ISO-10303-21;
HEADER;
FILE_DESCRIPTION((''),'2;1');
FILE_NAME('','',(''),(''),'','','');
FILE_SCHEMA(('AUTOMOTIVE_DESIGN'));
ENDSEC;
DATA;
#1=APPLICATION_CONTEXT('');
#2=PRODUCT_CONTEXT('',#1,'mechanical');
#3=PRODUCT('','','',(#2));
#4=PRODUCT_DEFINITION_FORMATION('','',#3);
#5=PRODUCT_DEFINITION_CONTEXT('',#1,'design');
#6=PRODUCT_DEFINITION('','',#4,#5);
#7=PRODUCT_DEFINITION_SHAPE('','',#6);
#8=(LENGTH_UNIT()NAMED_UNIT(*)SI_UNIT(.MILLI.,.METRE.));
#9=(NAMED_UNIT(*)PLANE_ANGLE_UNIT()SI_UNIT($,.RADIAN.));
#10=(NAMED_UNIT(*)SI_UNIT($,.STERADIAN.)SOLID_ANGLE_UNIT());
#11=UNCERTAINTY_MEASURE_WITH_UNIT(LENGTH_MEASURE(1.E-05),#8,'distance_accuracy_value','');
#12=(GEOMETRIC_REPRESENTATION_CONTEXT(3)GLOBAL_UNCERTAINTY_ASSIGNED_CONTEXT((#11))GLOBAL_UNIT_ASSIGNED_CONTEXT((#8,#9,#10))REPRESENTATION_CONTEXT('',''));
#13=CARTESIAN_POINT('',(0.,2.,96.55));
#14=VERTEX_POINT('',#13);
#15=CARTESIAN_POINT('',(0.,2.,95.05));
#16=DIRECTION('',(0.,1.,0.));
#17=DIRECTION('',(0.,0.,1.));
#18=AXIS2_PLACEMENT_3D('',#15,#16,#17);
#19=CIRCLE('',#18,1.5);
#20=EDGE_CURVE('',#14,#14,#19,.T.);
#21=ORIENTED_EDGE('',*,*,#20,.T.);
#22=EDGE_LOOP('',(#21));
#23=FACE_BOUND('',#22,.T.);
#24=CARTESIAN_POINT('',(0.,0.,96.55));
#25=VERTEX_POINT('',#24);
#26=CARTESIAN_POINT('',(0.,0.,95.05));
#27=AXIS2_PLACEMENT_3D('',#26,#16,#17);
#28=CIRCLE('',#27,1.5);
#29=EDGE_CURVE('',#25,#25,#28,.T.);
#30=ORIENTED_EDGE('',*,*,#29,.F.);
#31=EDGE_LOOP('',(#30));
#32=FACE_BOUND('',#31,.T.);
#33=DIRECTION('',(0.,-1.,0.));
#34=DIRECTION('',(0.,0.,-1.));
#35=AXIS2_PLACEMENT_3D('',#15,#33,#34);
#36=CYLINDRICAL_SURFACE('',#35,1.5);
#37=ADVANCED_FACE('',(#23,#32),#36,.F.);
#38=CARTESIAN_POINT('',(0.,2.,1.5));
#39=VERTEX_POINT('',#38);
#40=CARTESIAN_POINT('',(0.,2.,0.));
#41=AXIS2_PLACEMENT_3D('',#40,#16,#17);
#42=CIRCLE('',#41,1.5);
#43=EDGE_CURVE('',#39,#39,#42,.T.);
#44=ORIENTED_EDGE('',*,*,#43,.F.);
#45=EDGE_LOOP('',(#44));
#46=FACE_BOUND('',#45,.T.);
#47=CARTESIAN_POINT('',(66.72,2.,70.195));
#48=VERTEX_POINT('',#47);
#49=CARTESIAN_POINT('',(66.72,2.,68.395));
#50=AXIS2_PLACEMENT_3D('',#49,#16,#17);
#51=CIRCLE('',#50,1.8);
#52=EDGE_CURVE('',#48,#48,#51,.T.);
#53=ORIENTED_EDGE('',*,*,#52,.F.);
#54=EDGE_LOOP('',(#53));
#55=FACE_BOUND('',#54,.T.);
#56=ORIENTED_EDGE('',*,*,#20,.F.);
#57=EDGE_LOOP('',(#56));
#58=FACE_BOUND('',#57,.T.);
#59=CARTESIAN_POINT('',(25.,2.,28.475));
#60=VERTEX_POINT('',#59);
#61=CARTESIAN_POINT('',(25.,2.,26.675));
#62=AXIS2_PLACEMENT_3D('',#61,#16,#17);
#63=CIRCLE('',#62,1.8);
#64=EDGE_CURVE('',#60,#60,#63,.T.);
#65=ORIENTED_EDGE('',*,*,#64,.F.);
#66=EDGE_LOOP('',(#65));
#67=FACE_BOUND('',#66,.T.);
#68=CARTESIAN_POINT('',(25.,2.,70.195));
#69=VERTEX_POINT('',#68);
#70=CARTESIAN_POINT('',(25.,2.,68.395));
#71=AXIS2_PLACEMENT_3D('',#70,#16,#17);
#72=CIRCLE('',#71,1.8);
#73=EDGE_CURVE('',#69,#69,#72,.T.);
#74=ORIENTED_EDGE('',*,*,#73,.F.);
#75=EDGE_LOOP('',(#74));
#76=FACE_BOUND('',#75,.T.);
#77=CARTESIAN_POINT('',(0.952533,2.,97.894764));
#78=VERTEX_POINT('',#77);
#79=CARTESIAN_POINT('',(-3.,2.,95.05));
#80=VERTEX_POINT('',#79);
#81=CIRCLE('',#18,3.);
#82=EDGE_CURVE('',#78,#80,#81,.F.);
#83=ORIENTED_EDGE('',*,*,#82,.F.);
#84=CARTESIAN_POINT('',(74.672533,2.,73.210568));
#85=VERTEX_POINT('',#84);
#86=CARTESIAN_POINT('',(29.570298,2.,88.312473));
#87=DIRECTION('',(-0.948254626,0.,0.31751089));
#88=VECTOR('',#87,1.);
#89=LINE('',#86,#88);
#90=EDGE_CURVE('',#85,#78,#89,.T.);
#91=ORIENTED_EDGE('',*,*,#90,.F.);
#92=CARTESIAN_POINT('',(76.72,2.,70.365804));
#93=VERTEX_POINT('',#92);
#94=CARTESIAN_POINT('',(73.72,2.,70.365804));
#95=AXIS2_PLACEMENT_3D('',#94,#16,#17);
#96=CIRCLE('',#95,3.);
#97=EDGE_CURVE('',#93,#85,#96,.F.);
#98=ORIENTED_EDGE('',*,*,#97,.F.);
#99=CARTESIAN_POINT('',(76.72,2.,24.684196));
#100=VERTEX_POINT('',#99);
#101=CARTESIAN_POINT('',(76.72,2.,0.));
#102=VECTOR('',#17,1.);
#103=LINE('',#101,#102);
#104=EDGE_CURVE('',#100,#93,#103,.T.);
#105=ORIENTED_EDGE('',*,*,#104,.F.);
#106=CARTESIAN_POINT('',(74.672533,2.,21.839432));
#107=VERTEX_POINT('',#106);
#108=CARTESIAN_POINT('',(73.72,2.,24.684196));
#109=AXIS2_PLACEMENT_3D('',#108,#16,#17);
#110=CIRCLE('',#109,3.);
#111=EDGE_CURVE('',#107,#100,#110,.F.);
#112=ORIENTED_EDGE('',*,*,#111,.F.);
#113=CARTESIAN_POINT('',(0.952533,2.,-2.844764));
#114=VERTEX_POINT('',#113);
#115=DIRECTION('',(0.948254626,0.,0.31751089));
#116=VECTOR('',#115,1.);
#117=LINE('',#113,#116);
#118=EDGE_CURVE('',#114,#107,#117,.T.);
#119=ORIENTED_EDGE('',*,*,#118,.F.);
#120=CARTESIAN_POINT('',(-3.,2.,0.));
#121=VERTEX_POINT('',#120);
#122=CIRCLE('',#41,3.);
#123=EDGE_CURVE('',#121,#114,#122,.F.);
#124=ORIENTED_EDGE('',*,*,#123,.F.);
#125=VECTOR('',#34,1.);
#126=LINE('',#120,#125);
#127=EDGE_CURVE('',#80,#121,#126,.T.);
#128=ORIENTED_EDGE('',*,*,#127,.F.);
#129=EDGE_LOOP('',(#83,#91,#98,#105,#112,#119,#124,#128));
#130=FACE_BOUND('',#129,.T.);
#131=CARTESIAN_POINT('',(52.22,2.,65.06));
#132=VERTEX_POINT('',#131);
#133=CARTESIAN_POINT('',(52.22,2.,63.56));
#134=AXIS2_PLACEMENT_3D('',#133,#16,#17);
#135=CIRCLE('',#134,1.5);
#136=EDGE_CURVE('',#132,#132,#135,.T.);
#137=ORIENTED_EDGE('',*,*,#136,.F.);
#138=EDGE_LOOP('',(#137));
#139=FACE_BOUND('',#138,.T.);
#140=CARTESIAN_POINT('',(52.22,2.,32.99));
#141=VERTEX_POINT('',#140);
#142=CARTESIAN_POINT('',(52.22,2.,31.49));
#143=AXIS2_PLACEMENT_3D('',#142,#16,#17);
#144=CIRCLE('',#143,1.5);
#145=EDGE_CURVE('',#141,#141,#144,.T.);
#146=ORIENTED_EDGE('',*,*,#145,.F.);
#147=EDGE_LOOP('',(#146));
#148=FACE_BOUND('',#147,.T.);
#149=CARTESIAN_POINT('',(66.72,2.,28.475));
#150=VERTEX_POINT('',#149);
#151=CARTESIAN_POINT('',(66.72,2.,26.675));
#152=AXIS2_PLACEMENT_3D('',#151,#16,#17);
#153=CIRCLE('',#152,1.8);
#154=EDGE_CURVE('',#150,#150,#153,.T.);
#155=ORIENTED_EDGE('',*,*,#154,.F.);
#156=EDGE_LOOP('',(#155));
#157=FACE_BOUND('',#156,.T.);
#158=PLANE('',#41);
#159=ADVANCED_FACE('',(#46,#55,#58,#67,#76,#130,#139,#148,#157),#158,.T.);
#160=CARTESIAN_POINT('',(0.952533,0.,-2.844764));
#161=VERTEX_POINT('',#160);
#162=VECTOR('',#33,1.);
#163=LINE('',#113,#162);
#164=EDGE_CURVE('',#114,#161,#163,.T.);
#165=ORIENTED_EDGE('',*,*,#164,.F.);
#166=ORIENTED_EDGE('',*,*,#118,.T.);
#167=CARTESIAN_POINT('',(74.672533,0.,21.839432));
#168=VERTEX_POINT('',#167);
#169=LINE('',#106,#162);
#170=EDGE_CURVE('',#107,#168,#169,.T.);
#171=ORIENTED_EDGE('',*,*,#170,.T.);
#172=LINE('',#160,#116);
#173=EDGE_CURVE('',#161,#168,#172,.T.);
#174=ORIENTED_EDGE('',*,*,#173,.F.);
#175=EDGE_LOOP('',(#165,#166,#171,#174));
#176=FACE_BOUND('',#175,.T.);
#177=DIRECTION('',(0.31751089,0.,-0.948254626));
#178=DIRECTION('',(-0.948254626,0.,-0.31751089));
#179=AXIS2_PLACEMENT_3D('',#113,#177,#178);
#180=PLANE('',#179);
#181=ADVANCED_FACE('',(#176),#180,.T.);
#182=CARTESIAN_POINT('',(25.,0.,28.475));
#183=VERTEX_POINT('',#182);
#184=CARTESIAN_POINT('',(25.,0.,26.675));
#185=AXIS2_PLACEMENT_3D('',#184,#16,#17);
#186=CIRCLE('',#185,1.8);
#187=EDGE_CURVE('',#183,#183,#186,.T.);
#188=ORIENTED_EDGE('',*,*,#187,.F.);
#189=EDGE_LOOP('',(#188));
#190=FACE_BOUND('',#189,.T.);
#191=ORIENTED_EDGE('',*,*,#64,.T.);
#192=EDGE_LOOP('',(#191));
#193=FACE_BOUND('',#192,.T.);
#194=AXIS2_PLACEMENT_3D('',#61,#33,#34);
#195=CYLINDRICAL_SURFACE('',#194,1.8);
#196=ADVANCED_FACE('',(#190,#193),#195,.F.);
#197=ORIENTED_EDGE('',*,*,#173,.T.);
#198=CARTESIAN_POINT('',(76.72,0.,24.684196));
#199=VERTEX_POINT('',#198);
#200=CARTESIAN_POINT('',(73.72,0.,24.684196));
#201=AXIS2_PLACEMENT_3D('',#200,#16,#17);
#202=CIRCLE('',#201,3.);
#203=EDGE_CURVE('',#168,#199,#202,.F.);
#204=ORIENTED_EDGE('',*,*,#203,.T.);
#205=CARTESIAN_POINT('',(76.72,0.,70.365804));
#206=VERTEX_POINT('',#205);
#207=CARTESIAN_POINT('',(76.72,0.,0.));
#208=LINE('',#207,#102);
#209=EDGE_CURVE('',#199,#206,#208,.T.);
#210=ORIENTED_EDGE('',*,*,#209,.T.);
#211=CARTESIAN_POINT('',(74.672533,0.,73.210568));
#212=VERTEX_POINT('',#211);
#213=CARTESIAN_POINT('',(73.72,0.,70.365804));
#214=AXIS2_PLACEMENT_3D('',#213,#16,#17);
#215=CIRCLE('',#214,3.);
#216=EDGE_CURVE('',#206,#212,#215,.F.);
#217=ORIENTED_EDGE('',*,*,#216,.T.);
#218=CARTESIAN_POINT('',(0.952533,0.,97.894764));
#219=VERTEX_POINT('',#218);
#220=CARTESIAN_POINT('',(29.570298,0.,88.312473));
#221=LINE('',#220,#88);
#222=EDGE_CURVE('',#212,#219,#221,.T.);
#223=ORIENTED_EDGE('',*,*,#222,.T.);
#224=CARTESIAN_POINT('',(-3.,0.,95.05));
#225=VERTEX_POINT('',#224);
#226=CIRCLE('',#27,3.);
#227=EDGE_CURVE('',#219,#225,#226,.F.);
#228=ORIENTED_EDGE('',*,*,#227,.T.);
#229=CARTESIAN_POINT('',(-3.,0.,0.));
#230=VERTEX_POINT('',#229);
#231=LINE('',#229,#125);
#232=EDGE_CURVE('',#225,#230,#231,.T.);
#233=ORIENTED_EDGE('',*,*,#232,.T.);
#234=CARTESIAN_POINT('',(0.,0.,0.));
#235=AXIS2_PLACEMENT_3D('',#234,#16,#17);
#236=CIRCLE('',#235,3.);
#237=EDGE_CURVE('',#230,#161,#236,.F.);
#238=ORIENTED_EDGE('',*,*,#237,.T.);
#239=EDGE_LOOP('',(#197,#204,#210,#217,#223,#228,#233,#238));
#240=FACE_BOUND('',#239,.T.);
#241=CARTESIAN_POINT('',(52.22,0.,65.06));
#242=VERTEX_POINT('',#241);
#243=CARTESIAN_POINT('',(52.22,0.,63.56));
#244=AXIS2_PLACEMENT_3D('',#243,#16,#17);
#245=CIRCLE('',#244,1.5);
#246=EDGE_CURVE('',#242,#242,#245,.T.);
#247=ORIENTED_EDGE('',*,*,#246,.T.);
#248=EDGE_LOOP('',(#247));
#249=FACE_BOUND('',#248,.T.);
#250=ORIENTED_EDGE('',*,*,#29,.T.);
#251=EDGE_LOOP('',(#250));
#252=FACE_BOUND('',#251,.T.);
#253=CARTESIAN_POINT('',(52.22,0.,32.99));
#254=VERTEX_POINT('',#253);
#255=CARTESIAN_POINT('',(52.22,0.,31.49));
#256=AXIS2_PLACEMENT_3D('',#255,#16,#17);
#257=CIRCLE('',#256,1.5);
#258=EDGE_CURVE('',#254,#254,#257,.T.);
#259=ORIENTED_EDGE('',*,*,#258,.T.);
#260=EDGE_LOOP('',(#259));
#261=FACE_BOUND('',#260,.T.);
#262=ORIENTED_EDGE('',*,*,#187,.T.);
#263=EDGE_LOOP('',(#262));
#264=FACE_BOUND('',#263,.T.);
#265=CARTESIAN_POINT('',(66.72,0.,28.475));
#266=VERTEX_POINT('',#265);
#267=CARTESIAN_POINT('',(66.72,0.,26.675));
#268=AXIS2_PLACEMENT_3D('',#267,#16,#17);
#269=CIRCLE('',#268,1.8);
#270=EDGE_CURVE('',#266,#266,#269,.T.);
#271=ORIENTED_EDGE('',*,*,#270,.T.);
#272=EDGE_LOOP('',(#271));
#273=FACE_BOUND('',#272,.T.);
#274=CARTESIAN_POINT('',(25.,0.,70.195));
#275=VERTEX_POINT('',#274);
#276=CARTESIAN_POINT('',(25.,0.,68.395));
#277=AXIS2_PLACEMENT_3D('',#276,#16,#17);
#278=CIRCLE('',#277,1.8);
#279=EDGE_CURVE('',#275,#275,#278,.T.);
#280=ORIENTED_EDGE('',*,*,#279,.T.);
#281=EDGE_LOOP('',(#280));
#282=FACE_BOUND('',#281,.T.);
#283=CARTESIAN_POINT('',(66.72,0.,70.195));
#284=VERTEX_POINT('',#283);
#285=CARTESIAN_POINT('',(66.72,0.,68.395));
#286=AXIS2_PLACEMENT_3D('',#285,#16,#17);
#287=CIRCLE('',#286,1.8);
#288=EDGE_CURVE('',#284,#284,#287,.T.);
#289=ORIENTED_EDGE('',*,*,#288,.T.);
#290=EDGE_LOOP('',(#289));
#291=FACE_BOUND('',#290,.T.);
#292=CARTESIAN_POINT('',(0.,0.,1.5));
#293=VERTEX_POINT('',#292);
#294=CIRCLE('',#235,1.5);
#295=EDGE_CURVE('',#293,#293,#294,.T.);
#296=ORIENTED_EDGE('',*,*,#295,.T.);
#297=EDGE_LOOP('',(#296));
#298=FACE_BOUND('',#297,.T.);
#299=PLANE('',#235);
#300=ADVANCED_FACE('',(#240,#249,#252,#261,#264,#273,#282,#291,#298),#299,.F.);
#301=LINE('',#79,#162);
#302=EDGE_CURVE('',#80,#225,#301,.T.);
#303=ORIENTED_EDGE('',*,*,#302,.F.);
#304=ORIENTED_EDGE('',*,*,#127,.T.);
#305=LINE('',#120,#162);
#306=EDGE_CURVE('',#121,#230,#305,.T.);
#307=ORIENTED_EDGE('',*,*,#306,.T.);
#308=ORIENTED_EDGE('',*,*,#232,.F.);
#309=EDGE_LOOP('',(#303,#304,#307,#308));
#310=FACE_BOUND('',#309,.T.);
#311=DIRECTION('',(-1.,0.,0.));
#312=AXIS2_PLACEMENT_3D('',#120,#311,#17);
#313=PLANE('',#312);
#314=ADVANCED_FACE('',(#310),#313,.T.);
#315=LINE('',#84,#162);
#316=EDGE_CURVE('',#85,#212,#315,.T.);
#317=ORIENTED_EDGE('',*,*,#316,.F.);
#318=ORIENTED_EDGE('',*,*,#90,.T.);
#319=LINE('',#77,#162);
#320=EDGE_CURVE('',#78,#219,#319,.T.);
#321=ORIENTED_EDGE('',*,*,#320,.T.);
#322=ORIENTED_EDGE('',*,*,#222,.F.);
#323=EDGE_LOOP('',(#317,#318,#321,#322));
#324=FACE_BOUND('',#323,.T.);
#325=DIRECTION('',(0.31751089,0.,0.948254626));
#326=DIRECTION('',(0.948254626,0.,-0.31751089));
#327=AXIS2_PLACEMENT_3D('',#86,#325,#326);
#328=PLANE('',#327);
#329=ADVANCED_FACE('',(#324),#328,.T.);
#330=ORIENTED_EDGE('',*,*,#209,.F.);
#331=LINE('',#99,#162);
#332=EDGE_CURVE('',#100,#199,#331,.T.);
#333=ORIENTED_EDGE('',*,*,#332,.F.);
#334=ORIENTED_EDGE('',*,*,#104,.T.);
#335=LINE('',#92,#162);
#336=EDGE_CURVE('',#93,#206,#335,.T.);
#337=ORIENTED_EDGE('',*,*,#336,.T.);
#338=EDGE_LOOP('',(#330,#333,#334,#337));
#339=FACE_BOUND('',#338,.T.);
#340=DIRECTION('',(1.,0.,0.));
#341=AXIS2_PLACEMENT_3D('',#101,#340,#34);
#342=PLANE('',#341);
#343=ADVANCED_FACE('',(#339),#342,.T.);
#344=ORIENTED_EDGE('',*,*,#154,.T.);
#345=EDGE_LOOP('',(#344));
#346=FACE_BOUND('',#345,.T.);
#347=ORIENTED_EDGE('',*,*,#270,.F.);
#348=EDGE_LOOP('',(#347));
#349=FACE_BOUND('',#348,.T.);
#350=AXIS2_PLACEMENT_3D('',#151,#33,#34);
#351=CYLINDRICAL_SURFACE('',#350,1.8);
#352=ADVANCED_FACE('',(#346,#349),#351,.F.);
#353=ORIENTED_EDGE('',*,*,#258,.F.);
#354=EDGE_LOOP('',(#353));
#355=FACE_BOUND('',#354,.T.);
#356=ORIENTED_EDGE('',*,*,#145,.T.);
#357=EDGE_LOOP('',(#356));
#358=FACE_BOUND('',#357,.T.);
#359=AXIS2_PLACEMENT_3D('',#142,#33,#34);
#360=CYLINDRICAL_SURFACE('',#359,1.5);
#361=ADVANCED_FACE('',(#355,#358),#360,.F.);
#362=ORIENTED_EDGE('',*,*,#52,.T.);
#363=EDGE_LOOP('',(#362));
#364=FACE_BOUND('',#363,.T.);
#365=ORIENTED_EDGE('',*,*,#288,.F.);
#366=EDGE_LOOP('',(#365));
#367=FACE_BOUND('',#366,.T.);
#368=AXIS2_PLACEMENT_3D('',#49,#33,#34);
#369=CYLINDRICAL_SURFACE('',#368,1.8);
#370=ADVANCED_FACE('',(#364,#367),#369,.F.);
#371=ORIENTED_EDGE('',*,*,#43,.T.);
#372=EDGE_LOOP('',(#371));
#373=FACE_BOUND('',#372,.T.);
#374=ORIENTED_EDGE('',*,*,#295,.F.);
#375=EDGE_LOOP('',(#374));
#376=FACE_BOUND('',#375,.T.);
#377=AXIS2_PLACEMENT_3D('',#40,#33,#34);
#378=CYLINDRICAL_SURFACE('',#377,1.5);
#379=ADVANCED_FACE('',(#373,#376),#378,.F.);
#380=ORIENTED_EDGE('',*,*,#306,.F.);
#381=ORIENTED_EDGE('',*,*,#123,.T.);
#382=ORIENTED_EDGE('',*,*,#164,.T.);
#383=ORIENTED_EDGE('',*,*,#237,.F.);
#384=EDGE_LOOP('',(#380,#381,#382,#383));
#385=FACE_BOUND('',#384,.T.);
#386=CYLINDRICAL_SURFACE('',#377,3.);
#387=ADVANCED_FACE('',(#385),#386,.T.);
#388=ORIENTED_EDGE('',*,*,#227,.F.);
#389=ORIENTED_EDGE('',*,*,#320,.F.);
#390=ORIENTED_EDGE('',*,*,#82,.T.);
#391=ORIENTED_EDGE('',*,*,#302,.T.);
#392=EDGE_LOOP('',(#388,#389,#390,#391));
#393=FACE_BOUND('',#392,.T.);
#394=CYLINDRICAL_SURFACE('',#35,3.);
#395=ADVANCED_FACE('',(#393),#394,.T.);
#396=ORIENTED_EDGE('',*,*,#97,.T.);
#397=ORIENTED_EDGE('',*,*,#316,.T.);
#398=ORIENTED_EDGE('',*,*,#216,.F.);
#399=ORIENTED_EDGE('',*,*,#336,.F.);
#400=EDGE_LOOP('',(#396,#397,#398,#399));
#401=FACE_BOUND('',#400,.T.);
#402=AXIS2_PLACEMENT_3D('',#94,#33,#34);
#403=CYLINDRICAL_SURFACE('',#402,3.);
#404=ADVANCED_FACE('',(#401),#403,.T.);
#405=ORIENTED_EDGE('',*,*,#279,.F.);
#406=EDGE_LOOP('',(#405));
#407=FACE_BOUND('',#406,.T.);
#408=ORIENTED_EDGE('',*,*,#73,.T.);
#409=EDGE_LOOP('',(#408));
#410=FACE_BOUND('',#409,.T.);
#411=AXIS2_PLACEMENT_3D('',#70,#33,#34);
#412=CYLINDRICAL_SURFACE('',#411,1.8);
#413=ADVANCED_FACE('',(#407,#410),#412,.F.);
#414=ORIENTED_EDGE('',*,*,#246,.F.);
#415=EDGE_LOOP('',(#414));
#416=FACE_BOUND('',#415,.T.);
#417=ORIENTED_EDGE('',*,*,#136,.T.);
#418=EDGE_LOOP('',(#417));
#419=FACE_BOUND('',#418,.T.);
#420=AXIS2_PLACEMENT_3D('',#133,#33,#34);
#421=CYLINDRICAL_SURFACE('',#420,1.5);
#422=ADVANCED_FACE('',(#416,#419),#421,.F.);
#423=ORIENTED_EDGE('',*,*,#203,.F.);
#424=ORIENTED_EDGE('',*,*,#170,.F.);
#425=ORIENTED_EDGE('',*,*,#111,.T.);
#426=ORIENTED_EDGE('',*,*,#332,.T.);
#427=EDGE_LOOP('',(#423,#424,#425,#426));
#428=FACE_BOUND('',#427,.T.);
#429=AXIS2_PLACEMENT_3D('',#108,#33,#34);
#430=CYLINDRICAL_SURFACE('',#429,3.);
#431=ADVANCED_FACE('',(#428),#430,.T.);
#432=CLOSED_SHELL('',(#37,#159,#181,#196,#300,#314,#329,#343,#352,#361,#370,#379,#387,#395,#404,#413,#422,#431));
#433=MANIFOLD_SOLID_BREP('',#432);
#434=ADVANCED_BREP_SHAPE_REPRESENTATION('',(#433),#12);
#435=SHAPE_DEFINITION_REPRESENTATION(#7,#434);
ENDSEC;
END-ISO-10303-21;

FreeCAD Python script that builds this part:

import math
import FreeCAD as App
import Part
import Sketcher
from FreeCAD import Vector
Q = App.Units.Quantity

doc = App.newDocument("Part")
body = doc.addObject("PartDesign::Body", "Body")

sketch1 = doc.addObject("Sketcher::SketchObject", "Sketch")
body.addObject(sketch1)
sketch1.AttachmentSupport = (doc.XZ_Plane, [""])
sketch1.MapMode = "FlatFace"
sketch1.addGeometry([
    Part.LineSegment(Vector(74.7, 21.8, 0), Vector(1, -2.8, 0)),
    Part.ArcOfCircle(Part.Circle(Vector(0, 0, 0), Vector(0, 0, 1), 3), math.radians(180), math.radians(289)),
    Part.LineSegment(Vector(-3, 0, 0), Vector(-3, 95, 0)),
    Part.ArcOfCircle(Part.Circle(Vector(0, 95, 0), Vector(0, 0, 1), 3), math.radians(71), math.radians(180)),
    Part.LineSegment(Vector(1, 97.9, 0), Vector(74.7, 73.2, 0)),
    Part.ArcOfCircle(Part.Circle(Vector(73.7, 70.4, 0), Vector(0, 0, 1), 3), math.radians(0), math.radians(71)),
    Part.LineSegment(Vector(76.7, 70.4, 0), Vector(76.7, 24.7, 0)),
    Part.ArcOfCircle(Part.Circle(Vector(73.7, 24.7, 0), Vector(0, 0, 1), 3), math.radians(-71), math.radians(0)),
    Part.Circle(Vector(66.7, 68.4, 0), Vector(0, 0, 1), 1.8),
    Part.Circle(Vector(52.2, 63.6, 0), Vector(0, 0, 1), 1.5),
    Part.Circle(Vector(0, 95, 0), Vector(0, 0, 1), 1.5),
    Part.Circle(Vector(25, 68.4, 0), Vector(0, 0, 1), 1.8),
    Part.Circle(Vector(66.7, 26.7, 0), Vector(0, 0, 1), 1.8),
    Part.Circle(Vector(52.2, 31.5, 0), Vector(0, 0, 1), 1.5),
    Part.Circle(Vector(25, 26.7, 0), Vector(0, 0, 1), 1.8),
    Part.Circle(Vector(0, 0, 0), Vector(0, 0, 1), 1.5),
], False)
sketch1.addConstraint([
    Sketcher.Constraint("Tangent", 0, 2, 1, 2),
    Sketcher.Constraint("Tangent", 1, 1, 2, 1),
    Sketcher.Constraint("Tangent", 2, 2, 3, 2),
    Sketcher.Constraint("Tangent", 3, 1, 4, 1),
    Sketcher.Constraint("Tangent", 4, 2, 5, 2),
    Sketcher.Constraint("Tangent", 5, 1, 6, 1),
    Sketcher.Constraint("Tangent", 6, 2, 7, 2),
    Sketcher.Constraint("Tangent", 7, 1, 0, 1),
    Sketcher.Constraint("Vertical", 2),
    Sketcher.Constraint("Vertical", 6),
    Sketcher.Constraint("Coincident", 1, 3, -1, 1),
    Sketcher.Constraint("Coincident", 15, 3, -1, 1),
    Sketcher.Constraint("Coincident", 10, 3, 3, 3),
    Sketcher.Constraint("Equal", 1, 3),
    Sketcher.Constraint("Equal", 3, 5),
    Sketcher.Constraint("Equal", 5, 7),
    Sketcher.Constraint("Equal", 9, 10),
    Sketcher.Constraint("Equal", 8, 11),
    Sketcher.Constraint("Equal", 11, 12),
    Sketcher.Constraint("Equal", 10, 13),
    Sketcher.Constraint("Equal", 12, 14),
    Sketcher.Constraint("Equal", 13, 15),
    Sketcher.Constraint("Horizontal", 8, 3, 11, 3),
    Sketcher.Constraint("Horizontal", 12, 3, 14, 3),
    Sketcher.Constraint("Vertical", 8, 3, 12, 3),
    Sketcher.Constraint("Vertical", 9, 3, 13, 3),
    Sketcher.Constraint("Vertical", 11, 3, 14, 3),
    Sketcher.Constraint("Vertical", 0, 2, 3, 1),
    Sketcher.Constraint("Diameter", 9, Q("3 mm")),
    Sketcher.Constraint("Radius", 1, Q("3 mm")),
    Sketcher.Constraint("Diameter", 8, Q("3.6 mm")),
    Sketcher.Constraint("DistanceX", -1, 1, 11, 3, Q("25 mm")),
    Sketcher.Constraint("DistanceX", 8, 3, 5, 3, Q("7 mm")),
    Sketcher.Constraint("DistanceY", 2, 1, 2, 2, Q("95.05 mm")),
    Sketcher.Constraint("DistanceX", 9, 3, 8, 3, Q("14.5 mm")),
    Sketcher.Constraint("DistanceX", -1, 1, 5, 3, Q("73.72 mm")),
    Sketcher.Constraint("DistanceY", -1, 1, 9, 3, Q("63.56 mm")),
    Sketcher.Constraint("DistanceY", -1, 1, 13, 3, Q("31.49 mm")),
    Sketcher.Constraint("DistanceY", 12, 3, 8, 3, Q("41.72 mm")),
    Sketcher.Constraint("DistanceY", -1, 1, 8, 3, Q("68.395 mm")),
    Sketcher.Constraint("DistanceY", 6, 2, 6, 1, Q("45.681609 mm")),
])
pad1 = doc.addObject("PartDesign::Pad", "Pad")
body.addObject(pad1)
pad1.Profile = sketch1
pad1.Length = 2
pad1.Reversed = True

doc.recompute()
